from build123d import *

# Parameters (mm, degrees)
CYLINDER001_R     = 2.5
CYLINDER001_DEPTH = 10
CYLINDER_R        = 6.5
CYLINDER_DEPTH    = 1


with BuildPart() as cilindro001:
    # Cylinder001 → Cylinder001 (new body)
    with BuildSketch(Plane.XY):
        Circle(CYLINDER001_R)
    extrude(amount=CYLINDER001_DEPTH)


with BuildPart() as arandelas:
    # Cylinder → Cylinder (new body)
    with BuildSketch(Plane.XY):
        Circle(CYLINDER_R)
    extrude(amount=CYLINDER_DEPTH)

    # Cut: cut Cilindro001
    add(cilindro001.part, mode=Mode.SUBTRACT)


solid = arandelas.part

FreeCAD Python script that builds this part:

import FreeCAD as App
import Part
import Sketcher

V = App.Vector

doc = App.newDocument("Part")
body = doc.addObject("PartDesign::Body", "Body")

# Sketch on XY plane
sketch1 = doc.addObject("Sketcher::SketchObject", "Sketch")
body.addObject(sketch1)
sketch1.AttachmentSupport = (doc.XY_Plane, [""])
sketch1.MapMode = "FlatFace"
sketch1.addGeometry(Part.Circle(V(0, 0, 0), V(0, 0, 1), 2.5), False)
sketch1.addConstraint([
    Sketcher.Constraint("Coincident", 0, 3, -1, 1),
    Sketcher.Constraint("Diameter", 0, 5.0),
])
pad1 = doc.addObject("PartDesign::Pad", "Pad")
body.addObject(pad1)
pad1.Profile = sketch1
pad1.Length = 10
body2 = doc.addObject("PartDesign::Body", "Body001")

# Sketch on XY plane
sketch2 = doc.addObject("Sketcher::SketchObject", "Sketch001")
body2.addObject(sketch2)
sketch2.AttachmentSupport = (doc.getObject("XY_Plane001"), [""])
sketch2.MapMode = "FlatFace"
sketch2.addGeometry(Part.Circle(V(0, 0, 0), V(0, 0, 1), 6), False)
sketch2.addConstraint([
    Sketcher.Constraint("Coincident", 0, 3, -1, 1),
    Sketcher.Constraint("Diameter", 0, 13.0),
])
pad2 = doc.addObject("PartDesign::Pad", "Pad001")
body2.addObject(pad2)
pad2.Profile = sketch2
pad2.Length = 1
doc.recompute()

boolean = doc.addObject("PartDesign::Boolean", "Boolean")
body2.addObject(boolean)
boolean.Type = "Cut"
boolean.addObjects([body])

doc.recompute()
